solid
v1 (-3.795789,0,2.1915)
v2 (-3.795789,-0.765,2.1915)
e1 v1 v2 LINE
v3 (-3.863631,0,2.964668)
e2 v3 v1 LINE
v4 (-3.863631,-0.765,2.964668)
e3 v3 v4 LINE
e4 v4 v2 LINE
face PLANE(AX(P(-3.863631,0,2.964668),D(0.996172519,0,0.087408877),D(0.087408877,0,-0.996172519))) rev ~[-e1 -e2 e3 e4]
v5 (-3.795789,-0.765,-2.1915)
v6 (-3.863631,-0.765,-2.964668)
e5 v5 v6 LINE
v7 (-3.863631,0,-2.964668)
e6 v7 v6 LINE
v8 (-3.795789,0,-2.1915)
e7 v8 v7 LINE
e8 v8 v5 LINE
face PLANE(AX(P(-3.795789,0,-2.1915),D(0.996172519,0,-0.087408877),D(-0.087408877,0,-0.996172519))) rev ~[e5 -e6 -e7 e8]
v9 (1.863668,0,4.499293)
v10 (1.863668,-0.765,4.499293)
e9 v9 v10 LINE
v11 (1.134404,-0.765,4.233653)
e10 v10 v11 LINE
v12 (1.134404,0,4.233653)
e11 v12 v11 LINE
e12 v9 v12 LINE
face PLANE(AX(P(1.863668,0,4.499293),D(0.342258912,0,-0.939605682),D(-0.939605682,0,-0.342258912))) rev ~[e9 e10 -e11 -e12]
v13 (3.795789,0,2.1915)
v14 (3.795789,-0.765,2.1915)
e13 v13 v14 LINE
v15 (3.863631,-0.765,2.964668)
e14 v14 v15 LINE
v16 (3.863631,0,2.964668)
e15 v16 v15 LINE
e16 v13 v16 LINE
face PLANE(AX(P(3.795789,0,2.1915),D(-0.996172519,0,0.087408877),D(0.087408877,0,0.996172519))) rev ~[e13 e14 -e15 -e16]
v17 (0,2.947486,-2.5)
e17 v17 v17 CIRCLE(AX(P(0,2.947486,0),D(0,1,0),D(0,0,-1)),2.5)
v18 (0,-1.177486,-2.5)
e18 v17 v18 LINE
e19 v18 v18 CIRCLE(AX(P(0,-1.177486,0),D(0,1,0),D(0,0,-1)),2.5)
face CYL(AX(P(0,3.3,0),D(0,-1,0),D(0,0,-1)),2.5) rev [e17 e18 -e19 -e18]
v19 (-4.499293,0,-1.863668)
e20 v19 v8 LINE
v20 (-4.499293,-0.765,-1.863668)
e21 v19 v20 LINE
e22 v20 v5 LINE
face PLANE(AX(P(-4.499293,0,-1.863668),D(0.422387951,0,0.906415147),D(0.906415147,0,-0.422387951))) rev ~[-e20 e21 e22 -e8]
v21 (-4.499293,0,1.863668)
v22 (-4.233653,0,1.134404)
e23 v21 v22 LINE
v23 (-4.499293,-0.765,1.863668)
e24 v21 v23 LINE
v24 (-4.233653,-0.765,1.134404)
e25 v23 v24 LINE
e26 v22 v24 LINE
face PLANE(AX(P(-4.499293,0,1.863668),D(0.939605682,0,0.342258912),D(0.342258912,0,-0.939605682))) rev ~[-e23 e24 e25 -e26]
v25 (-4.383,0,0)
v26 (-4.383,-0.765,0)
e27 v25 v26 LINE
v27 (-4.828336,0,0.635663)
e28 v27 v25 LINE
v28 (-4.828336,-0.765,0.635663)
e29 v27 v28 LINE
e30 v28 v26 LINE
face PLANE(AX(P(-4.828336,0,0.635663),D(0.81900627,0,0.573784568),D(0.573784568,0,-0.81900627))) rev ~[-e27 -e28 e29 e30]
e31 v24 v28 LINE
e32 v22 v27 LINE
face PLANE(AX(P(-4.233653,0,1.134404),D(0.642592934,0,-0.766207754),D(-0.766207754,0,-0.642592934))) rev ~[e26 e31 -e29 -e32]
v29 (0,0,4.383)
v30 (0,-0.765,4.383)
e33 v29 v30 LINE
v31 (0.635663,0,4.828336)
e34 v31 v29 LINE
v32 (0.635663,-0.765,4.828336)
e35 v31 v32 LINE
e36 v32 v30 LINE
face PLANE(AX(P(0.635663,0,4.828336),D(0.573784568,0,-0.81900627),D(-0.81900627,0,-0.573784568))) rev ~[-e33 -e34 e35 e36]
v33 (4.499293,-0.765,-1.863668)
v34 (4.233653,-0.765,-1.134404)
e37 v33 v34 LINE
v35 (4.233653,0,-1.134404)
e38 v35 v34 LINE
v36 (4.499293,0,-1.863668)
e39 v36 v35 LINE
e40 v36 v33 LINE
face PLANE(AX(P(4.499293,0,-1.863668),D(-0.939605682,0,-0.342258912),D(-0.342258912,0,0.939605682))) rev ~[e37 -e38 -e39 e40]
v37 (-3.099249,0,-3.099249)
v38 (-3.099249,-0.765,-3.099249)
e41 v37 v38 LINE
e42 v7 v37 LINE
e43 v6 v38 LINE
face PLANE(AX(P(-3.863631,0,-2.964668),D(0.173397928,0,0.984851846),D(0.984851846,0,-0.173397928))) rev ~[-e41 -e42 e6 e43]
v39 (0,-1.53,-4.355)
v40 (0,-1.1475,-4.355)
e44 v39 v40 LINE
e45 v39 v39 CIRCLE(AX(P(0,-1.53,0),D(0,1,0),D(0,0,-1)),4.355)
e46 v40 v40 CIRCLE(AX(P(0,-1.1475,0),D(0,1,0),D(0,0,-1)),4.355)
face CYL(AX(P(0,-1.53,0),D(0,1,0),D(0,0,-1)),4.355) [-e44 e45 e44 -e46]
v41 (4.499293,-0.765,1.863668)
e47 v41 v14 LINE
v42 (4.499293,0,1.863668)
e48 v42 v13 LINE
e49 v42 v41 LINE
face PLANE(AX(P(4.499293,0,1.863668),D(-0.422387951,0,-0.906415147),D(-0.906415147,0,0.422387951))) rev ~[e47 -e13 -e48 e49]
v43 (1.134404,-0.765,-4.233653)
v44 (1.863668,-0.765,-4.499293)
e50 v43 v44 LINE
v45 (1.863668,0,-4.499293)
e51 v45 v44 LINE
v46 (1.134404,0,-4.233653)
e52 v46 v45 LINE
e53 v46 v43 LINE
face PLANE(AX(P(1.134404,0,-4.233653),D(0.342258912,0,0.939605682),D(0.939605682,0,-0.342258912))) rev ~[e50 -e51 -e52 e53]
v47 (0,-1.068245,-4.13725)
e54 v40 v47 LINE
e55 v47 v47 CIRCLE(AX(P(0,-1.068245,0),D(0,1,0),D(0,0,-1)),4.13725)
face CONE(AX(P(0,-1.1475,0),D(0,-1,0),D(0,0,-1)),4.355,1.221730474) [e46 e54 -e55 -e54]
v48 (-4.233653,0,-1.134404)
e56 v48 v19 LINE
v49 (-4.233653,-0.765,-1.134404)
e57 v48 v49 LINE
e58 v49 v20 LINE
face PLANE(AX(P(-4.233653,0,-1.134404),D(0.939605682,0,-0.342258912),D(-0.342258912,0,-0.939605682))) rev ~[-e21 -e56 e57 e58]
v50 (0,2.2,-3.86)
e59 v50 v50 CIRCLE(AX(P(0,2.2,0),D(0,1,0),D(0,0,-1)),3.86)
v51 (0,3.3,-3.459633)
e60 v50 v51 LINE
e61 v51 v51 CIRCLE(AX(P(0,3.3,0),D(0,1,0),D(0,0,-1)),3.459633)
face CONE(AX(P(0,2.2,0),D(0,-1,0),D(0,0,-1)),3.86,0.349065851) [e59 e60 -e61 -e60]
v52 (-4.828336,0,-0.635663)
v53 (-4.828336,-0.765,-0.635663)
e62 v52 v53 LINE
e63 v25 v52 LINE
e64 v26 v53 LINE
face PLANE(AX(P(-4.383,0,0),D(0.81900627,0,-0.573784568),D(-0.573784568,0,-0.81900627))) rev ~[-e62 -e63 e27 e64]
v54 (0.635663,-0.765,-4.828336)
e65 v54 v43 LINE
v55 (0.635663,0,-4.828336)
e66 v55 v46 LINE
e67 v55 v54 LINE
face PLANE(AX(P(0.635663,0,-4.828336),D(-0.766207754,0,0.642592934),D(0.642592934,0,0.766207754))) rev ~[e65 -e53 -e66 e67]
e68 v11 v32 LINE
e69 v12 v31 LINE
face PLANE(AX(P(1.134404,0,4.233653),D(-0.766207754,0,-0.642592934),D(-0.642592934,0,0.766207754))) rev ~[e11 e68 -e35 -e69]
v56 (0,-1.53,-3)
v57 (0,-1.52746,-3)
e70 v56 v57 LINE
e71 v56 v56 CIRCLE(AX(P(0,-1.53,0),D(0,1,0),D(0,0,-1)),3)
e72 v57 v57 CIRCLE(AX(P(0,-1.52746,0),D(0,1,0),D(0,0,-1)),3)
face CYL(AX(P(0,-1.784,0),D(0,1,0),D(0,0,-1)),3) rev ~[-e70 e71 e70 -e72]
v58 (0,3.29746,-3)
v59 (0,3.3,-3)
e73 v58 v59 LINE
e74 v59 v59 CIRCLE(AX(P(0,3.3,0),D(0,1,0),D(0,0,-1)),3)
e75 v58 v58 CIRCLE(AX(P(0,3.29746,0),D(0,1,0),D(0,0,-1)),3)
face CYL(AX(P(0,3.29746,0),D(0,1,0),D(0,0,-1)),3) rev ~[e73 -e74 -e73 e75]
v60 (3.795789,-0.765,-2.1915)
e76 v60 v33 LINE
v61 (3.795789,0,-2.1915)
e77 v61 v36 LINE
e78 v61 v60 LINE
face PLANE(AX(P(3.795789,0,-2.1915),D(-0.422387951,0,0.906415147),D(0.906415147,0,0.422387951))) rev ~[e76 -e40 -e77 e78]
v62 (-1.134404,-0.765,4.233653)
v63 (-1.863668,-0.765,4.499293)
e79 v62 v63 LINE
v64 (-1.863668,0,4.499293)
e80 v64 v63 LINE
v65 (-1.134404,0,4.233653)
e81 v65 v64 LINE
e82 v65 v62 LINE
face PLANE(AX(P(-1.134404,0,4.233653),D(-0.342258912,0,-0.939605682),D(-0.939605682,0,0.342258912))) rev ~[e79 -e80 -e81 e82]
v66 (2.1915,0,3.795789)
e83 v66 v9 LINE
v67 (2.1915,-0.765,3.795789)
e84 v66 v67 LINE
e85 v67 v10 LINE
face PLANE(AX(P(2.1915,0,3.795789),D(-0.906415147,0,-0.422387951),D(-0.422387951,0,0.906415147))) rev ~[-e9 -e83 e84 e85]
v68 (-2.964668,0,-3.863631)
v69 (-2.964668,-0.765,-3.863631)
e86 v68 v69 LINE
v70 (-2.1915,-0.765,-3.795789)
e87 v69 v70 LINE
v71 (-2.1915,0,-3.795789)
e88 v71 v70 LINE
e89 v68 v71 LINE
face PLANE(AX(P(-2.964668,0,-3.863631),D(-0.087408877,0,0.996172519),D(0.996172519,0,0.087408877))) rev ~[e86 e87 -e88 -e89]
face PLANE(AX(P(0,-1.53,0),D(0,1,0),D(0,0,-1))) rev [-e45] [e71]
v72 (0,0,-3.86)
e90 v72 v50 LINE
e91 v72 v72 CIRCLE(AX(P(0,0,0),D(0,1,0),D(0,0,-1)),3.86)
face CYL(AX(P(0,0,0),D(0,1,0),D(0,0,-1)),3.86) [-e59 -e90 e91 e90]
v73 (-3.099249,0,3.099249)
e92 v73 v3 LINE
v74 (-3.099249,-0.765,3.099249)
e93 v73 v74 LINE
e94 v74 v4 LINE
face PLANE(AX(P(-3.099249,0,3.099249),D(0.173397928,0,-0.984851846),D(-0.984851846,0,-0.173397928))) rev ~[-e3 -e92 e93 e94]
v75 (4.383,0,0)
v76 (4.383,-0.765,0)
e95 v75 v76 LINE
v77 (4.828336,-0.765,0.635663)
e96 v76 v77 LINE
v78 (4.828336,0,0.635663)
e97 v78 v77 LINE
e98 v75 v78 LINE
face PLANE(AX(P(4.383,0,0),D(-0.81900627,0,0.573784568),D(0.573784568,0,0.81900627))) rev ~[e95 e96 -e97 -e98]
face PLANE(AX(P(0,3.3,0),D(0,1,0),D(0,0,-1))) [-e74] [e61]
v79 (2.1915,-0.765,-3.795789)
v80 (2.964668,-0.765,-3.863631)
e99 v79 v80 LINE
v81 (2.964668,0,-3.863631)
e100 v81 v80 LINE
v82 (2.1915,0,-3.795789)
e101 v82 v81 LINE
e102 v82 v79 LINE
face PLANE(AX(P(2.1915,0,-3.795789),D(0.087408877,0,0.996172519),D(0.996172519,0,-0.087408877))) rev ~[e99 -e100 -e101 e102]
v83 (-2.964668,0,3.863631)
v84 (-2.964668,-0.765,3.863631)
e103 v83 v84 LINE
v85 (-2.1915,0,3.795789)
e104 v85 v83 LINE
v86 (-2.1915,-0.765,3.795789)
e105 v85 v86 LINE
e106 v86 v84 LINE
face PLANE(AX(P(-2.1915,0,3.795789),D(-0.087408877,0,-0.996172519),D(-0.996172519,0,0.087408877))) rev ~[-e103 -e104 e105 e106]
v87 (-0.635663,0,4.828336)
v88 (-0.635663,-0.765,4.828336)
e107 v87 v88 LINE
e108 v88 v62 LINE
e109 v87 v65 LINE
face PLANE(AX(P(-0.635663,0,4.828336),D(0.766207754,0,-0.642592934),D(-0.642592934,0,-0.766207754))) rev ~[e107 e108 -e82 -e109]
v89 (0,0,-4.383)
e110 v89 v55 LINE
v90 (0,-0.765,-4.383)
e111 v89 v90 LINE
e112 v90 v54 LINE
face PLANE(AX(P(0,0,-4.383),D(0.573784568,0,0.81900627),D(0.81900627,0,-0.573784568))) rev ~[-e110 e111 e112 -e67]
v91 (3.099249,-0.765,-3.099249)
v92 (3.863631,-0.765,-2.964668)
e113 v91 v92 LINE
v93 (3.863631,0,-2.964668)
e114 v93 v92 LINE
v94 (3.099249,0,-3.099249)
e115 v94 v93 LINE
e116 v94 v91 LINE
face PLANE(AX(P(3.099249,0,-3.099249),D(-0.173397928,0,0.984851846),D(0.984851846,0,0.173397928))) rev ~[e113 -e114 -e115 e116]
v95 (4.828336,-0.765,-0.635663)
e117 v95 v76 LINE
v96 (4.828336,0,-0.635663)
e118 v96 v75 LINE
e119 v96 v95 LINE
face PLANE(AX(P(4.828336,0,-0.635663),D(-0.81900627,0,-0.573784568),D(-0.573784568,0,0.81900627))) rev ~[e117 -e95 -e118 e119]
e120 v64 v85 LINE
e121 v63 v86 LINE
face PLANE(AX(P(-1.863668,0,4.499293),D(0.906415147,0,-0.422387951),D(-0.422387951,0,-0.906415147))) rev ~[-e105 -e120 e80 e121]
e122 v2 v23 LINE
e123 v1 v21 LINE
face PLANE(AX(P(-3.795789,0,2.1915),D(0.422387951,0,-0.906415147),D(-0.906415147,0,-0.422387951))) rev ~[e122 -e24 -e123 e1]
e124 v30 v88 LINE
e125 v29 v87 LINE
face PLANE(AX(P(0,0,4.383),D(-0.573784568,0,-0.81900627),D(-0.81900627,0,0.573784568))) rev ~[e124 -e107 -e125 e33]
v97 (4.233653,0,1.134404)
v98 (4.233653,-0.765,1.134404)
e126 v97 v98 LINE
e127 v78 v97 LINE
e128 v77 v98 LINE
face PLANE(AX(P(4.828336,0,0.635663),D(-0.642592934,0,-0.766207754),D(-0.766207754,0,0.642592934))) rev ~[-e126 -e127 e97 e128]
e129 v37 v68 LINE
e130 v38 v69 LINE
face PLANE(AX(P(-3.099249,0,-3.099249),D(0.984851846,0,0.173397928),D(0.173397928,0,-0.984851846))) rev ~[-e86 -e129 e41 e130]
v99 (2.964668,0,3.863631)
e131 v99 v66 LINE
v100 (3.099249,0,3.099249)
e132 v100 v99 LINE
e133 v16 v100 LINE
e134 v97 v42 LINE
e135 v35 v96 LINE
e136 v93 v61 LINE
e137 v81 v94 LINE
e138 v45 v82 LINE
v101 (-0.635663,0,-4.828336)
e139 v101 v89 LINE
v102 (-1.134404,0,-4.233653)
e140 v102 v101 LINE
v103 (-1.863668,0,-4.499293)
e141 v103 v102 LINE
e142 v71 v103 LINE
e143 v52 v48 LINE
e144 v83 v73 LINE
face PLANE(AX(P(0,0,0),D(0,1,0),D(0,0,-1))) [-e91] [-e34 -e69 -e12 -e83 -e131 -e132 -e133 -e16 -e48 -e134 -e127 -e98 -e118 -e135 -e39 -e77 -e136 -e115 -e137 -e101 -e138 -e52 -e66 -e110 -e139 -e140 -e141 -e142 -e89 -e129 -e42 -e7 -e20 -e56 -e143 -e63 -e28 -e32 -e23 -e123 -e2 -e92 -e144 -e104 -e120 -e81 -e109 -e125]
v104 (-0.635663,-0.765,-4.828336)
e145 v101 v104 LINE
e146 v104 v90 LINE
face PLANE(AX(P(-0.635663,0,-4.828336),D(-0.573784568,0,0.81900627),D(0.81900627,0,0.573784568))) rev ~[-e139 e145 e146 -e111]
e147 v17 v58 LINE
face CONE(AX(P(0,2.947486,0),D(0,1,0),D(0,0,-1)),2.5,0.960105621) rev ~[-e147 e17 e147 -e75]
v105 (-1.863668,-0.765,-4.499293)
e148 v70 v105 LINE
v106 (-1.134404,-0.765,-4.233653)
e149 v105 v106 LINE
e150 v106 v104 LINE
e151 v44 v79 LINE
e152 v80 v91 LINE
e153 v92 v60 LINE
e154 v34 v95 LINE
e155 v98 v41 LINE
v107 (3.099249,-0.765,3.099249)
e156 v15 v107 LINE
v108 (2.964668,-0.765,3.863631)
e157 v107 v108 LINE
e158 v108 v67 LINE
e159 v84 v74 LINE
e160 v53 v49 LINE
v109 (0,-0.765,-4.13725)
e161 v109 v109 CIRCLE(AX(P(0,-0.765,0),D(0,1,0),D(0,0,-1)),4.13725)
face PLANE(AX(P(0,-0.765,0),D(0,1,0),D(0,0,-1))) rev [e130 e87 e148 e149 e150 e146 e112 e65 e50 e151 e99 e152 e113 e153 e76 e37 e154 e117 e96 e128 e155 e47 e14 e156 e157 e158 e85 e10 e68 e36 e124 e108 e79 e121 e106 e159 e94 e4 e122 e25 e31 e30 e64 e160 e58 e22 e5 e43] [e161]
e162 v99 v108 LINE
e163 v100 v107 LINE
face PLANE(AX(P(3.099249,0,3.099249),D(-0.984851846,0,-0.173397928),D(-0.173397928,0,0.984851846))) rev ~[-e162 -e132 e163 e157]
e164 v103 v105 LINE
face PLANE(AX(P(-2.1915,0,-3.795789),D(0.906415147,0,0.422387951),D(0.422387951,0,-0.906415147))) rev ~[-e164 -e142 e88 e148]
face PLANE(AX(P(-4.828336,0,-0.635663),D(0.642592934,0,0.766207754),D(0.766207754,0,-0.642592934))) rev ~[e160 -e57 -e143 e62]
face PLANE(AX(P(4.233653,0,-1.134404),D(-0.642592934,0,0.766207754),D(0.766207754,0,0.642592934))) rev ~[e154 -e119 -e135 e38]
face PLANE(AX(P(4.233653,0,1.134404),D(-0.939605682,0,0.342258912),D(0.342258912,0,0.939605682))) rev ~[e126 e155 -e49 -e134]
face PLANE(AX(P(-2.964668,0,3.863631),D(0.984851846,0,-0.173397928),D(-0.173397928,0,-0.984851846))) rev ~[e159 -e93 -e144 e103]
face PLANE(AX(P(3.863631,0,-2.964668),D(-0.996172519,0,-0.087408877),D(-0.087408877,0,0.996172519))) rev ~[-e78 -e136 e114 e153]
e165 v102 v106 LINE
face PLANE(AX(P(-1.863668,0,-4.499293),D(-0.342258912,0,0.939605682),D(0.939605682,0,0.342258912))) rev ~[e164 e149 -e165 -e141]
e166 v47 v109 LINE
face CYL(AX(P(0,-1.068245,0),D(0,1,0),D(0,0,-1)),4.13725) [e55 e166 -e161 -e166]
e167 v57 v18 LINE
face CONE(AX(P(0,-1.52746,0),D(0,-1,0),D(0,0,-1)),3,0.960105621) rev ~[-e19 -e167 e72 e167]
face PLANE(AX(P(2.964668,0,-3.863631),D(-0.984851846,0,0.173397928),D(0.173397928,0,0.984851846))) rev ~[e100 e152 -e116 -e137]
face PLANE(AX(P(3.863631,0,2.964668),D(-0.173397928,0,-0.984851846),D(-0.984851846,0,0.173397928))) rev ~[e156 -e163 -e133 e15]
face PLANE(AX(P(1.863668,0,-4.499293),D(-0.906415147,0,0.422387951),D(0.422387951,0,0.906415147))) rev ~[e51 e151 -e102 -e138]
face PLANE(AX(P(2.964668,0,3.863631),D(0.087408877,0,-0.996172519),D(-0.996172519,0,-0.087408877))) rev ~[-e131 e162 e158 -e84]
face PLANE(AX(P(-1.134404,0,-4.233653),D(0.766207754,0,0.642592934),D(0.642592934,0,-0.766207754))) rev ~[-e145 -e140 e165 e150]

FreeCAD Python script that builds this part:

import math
import FreeCAD as App
import Part
import Sketcher
from FreeCAD import Vector
Q = App.Units.Quantity

doc = App.newDocument("Part")
body = doc.addObject("PartDesign::Body", "Body")

# Sketch on XY plane
sketch1 = doc.addObject("Sketcher::SketchObject", "Sketch")
body.addObject(sketch1)
sketch1.AttachmentSupport = (doc.XY_Plane, [""])
sketch1.MapMode = "FlatFace"
sketch1.addGeometry(Part.LineSegment(Vector(4.14, -1.07, 0), Vector(4.14, -0.77, 0)), False)
sketch1.addGeometry(Part.LineSegment(Vector(4.14, -0.77, 0), Vector(4.87, -0.77, 0)), False)
sketch1.addGeometry(Part.LineSegment(Vector(4.87, -0.77, 0), Vector(4.87, 0, 0)), False)
sketch1.addGeometry(Part.LineSegment(Vector(4.87, 0, 0), Vector(3.86, 0, 0)), False)
sketch1.addGeometry(Part.LineSegment(Vector(3.86, 0, 0), Vector(3.86, 2.2, 0)), False)
sketch1.addGeometry(Part.LineSegment(Vector(3.86, 2.2, 0), Vector(3.46, 3.3, 0)), False)
sketch1.addGeometry(Part.LineSegment(Vector(3.46, 3.3, 0), Vector(2.5, 3.3, 0)), False)
sketch1.addGeometry(Part.LineSegment(Vector(2.5, 3.3, 0), Vector(2.5, -1.53, 0)), False)
sketch1.addGeometry(Part.LineSegment(Vector(2.5, -1.53, 0), Vector(4.36, -1.53, 0)), False)
sketch1.addGeometry(Part.LineSegment(Vector(4.36, -1.53, 0), Vector(4.36, -1.15, 0)), False)
sketch1.addGeometry(Part.LineSegment(Vector(4.36, -1.15, 0), Vector(4.14, -1.07, 0)), False)
sketch1.addConstraint(Sketcher.Constraint("Coincident", 0, 2, 1, 1))
sketch1.addConstraint(Sketcher.Constraint("Coincident", 1, 2, 2, 1))
sketch1.addConstraint(Sketcher.Constraint("Coincident", 2, 2, 3, 1))
sketch1.addConstraint(Sketcher.Constraint("Coincident", 3, 2, 4, 1))
sketch1.addConstraint(Sketcher.Constraint("Coincident", 4, 2, 5, 1))
sketch1.addConstraint(Sketcher.Constraint("Coincident", 5, 2, 6, 1))
sketch1.addConstraint(Sketcher.Constraint("Coincident", 6, 2, 7, 1))
sketch1.addConstraint(Sketcher.Constraint("Coincident", 7, 2, 8, 1))
sketch1.addConstraint(Sketcher.Constraint("Coincident", 8, 2, 9, 1))
sketch1.addConstraint(Sketcher.Constraint("Coincident", 9, 2, 10, 1))
sketch1.addConstraint(Sketcher.Constraint("Coincident", 10, 2, 0, 1))
sketch1.addConstraint(Sketcher.Constraint("Vertical", 0))
sketch1.addConstraint(Sketcher.Constraint("Horizontal", 1))
sketch1.addConstraint(Sketcher.Constraint("Vertical", 2))
sketch1.addConstraint(Sketcher.Constraint("Horizontal", 3))
sketch1.addConstraint(Sketcher.Constraint("Vertical", 4))
sketch1.addConstraint(Sketcher.Constraint("Horizontal", 6))
sketch1.addConstraint(Sketcher.Constraint("Vertical", 7))
sketch1.addConstraint(Sketcher.Constraint("Horizontal", 8))
sketch1.addConstraint(Sketcher.Constraint("Vertical", 9))
sketch1.addConstraint(Sketcher.Constraint("PointOnObject", 2, 2, -1))
sketch1.addConstraint(Sketcher.Constraint("Angle", 5, Q("110 deg")))
sketch1.addConstraint(Sketcher.Constraint("Angle", 10, Q("160 deg")))
sketch1.addConstraint(Sketcher.Constraint("DistanceY", 4, 1, 4, 2, 2.2))
sketch1.addConstraint(Sketcher.Constraint("DistanceX", 3, 2, 3, 1, 1.01))
sketch1.addConstraint(Sketcher.Constraint("DistanceY", 7, 2, 7, 1, 4.83))
sketch1.addConstraint(Sketcher.Constraint("DistanceY", -1, 1, 5, 2, 3.3))
sketch1.addConstraint(Sketcher.Constraint("DistanceX", -1, 1, 6, 2, 2.5))
sketch1.addConstraint(Sketcher.Constraint("DistanceX", 8, 1, 8, 2, 1.855))
sketch1.addConstraint(Sketcher.Constraint("DistanceY", 2, 1, 2, 2, 0.765))
sketch1.addConstraint(Sketcher.Constraint("DistanceX", -1, 1, 1, 2, 4.87))
sketch1.addConstraint(Sketcher.Constraint("DistanceY", 9, 1, 9, 2, 0.3825))
sketch1.addConstraint(Sketcher.Constraint("DistanceX", 1, 1, 1, 2, 0.73275))
revolution = doc.addObject("PartDesign::Revolution", "Revolution")
body.addObject(revolution)
revolution.Profile = sketch1
revolution.ReferenceAxis = (sketch1, ["V_Axis"])
revolution.Angle = 360

# Sketch on XY plane
sketch2 = doc.addObject("Sketcher::SketchObject", "Sketch001")
body.addObject(sketch2)
sketch2.AttachmentSupport = (doc.XY_Plane, [""])
sketch2.MapMode = "FlatFace"
sketch2.addGeometry(Part.LineSegment(Vector(3, -1.78, 0), Vector(3, -1.53, 0)), False)
sketch2.addGeometry(Part.LineSegment(Vector(3, -1.53, 0), Vector(2.5, -1.18, 0)), False)
sketch2.addGeometry(Part.LineSegment(Vector(2.5, -1.18, 0), Vector(2.5, -1.78, 0)), False)
sketch2.addGeometry(Part.LineSegment(Vector(2.5, -1.78, 0), Vector(3, -1.78, 0)), False)
sketch2.addGeometry(Part.LineSegment(Vector(3, 3.3, 0), Vector(3, 3.55, 0)), False)
sketch2.addGeometry(Part.LineSegment(Vector(3, 3.55, 0), Vector(2.5, 3.55, 0)), False)
sketch2.addGeometry(Part.LineSegment(Vector(2.5, 3.55, 0), Vector(2.5, 2.95, 0)), False)
sketch2.addGeometry(Part.LineSegment(Vector(2.5, 2.95, 0), Vector(3, 3.3, 0)), False)
sketch2.addConstraint(Sketcher.Constraint("Coincident", 0, 2, 1, 1))
sketch2.addConstraint(Sketcher.Constraint("Coincident", 1, 2, 2, 1))
sketch2.addConstraint(Sketcher.Constraint("Coincident", 2, 2, 3, 1))
sketch2.addConstraint(Sketcher.Constraint("Coincident", 3, 2, 0, 1))
sketch2.addConstraint(Sketcher.Constraint("Coincident", 4, 2, 5, 1))
sketch2.addConstraint(Sketcher.Constraint("Coincident", 5, 2, 6, 1))
sketch2.addConstraint(Sketcher.Constraint("Coincident", 6, 2, 7, 1))
sketch2.addConstraint(Sketcher.Constraint("Coincident", 7, 2, 4, 1))
sketch2.addConstraint(Sketcher.Constraint("Vertical", 0))
sketch2.addConstraint(Sketcher.Constraint("Vertical", 2))
sketch2.addConstraint(Sketcher.Constraint("Horizontal", 3))
sketch2.addConstraint(Sketcher.Constraint("Vertical", 4))
sketch2.addConstraint(Sketcher.Constraint("Horizontal", 5))
sketch2.addConstraint(Sketcher.Constraint("Vertical", 6))
sketch2.addConstraint(Sketcher.Constraint("Vertical", 3, 2, 4, 2))
sketch2.addConstraint(Sketcher.Constraint("Vertical", 2, 2, 5, 2))
sketch2.addConstraint(Sketcher.Constraint("Equal", 0, 4))
sketch2.addConstraint(Sketcher.Constraint("Equal", 2, 6))
sketch2.addConstraint(Sketcher.Constraint("DistanceX", 3, 1, 3, 2, 0.5))
sketch2.addConstraint(Sketcher.Constraint("DistanceX", -1, 1, 0, 2, 3.0))
sketch2.addConstraint(Sketcher.Constraint("Angle", 1, Q("145.01 deg")))
sketch2.addConstraint(Sketcher.Constraint("DistanceY", 2, 2, -1, 1, 1.784))
sketch2.addConstraint(Sketcher.Constraint("DistanceY", -1, 1, 4, 2, 3.554))
sketch2.addConstraint(Sketcher.Constraint("DistanceY", 0, 1, 0, 2, 0.25654))
groove = doc.addObject("PartDesign::Groove", "Groove")
body.addObject(groove)
groove.Profile = sketch2
groove.ReferenceAxis = (sketch2, ["V_Axis"])
groove.Angle = 360

# Sketch on XZ plane
sketch3 = doc.addObject("Sketcher::SketchObject", "Sketch002")
body.addObject(sketch3)
sketch3.AttachmentSupport = (doc.XZ_Plane, [""])
sketch3.MapMode = "FlatFace"
sketch3.addGeometry(Part.LineSegment(Vector(0, 4.4, 0), Vector(0.6, 4.8, 0)), False)
sketch3.addGeometry(Part.ArcOfCircle(Part.Circle(Vector(0, 0, 0), Vector(0, 0, 1), 4.9), math.radians(82.5), math.radians(97.5)), False)
sketch3.addGeometry(Part.LineSegment(Vector(-0.6, 4.8, 0), Vector(0, 4.4, 0)), False)
sketch3.addConstraint(Sketcher.Constraint("Coincident", 0, 2, 1, 1))
sketch3.addConstraint(Sketcher.Constraint("Coincident", 1, 2, 2, 1))
sketch3.addConstraint(Sketcher.Constraint("Coincident", 2, 2, 0, 1))
sketch3.addConstraint(Sketcher.Constraint("Coincident", 1, 3, -1, 1))
sketch3.addConstraint(Sketcher.Constraint("PointOnObject", 2, 2, -2))
sketch3.addConstraint(Sketcher.Constraint("Horizontal", 0, 2, 1, 2))
sketch3.addConstraint(Sketcher.Constraint("Radius", 1, 4.87))
sketch3.addConstraint(Sketcher.Constraint("DistanceY", -1, 1, 2, 2, 4.383))
sketch3.addConstraint(Sketcher.Constraint("Distance", 0, 0.776139))
pocket1 = doc.addObject("PartDesign::Pocket", "Pocket")
body.addObject(pocket1)
pocket1.Profile = sketch3
pocket1.Length = 0.765
pocket1.Reversed = True
doc.recompute()

polarpattern = doc.addObject("PartDesign::PolarPattern", "PolarPattern")
body.addObject(polarpattern)
polarpattern.Originals = [pocket1]
polarpattern.Axis = (doc.Y_Axis, [""])
polarpattern.Angle = 360
polarpattern.Occurrences = 24
body.Tip = polarpattern

doc.recompute()
